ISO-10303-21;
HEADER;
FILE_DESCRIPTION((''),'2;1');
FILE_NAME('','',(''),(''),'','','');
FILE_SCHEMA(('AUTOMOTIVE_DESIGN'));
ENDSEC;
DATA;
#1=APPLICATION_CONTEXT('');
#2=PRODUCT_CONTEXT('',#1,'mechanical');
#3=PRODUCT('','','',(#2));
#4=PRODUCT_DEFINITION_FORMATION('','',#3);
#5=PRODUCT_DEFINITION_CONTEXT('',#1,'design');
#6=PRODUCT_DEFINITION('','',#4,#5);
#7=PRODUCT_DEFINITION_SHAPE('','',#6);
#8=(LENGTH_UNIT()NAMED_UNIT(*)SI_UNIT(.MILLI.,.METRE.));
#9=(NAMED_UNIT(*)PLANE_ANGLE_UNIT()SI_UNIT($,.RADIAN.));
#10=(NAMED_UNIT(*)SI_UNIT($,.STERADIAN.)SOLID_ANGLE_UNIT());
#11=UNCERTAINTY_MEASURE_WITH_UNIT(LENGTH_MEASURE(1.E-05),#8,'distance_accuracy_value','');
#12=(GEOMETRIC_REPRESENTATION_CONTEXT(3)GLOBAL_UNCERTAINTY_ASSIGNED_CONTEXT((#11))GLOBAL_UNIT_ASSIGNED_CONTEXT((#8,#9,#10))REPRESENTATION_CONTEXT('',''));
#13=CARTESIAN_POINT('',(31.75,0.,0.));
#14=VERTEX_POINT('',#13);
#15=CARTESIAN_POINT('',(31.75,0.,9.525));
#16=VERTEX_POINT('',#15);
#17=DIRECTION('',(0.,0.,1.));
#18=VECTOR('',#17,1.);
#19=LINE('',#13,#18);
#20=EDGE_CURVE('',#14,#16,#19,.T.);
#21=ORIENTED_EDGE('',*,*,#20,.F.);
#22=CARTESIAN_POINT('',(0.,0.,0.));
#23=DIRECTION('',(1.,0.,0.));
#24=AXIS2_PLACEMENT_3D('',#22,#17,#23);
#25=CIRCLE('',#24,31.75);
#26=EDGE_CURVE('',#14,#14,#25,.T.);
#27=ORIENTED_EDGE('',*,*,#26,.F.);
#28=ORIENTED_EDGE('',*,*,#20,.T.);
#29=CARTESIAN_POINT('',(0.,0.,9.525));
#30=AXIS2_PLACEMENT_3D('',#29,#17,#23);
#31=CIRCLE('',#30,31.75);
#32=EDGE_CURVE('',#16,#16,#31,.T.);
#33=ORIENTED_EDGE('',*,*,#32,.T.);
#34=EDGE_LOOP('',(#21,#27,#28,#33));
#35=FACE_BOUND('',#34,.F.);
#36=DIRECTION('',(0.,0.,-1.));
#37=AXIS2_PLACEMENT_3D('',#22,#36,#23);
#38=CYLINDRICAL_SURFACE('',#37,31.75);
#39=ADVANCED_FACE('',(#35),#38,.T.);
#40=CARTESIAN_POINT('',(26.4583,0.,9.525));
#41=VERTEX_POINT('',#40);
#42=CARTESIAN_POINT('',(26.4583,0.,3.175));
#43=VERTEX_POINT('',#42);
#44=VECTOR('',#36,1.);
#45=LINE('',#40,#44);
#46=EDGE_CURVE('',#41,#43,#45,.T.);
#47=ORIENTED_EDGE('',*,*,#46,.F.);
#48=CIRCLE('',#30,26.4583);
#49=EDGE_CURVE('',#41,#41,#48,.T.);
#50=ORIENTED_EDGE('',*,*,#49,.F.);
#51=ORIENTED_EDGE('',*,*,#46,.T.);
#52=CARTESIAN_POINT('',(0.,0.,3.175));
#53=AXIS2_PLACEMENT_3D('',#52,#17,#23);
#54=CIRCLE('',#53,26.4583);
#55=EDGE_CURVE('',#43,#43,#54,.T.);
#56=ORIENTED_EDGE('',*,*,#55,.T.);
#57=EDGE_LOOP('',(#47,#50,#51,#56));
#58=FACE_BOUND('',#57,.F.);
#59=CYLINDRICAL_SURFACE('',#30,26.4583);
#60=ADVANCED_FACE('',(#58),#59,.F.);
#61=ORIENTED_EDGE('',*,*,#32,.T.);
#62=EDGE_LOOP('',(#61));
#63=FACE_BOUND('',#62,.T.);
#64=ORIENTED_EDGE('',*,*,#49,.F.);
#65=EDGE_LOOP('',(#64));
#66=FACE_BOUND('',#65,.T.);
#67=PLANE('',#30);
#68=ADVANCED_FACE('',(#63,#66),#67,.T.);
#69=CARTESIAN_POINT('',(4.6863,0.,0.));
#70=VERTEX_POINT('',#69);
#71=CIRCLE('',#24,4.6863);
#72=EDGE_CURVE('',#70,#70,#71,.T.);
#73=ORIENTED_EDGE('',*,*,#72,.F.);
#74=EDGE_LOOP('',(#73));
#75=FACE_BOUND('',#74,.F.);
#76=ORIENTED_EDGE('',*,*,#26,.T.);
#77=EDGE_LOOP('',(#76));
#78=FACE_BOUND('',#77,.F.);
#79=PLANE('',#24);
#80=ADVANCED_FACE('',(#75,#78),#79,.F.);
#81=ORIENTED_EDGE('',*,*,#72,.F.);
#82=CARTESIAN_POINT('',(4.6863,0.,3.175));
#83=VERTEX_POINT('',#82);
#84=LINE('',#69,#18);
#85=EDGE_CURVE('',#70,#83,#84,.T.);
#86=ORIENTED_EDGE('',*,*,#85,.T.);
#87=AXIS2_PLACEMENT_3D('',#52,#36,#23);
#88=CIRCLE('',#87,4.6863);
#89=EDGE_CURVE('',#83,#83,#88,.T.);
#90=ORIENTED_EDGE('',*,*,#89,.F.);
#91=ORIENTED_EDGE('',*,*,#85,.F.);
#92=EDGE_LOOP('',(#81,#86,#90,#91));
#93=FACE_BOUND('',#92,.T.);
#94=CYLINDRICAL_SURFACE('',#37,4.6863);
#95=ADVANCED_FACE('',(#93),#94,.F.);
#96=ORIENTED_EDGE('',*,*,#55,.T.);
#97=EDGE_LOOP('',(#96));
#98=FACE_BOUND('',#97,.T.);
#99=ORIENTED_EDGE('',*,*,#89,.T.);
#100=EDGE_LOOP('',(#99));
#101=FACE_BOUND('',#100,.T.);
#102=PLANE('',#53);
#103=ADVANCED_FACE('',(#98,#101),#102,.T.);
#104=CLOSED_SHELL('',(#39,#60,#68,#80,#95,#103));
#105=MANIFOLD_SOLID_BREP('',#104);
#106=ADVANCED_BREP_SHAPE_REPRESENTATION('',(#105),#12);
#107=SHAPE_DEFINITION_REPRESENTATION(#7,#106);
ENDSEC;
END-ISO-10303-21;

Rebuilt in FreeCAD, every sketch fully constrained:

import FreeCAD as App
import Part
import Sketcher

V = App.Vector
Q = App.Units.Quantity

doc = App.newDocument("Part")
params = doc.addObject("Spreadsheet::Sheet", "Params")
for row, (alias, value) in enumerate([
    ("sketch1_diameter", "0.369 in"),
    ("sketch1_diameter2", "2.5 in"),
    ("pad1_length", "0.375 in"),
    ("pocket1_length", "0.25 in"),
], start=1):
    params.set(f"A{row}", alias)
    params.set(f"B{row}", "=" + value)
    params.setAlias(f"B{row}", alias)

body = doc.addObject("PartDesign::Body", "Body")

# Sketch on XY plane
sketch1 = body.newObject("Sketcher::SketchObject", "Sketch")
sketch1.AttachmentSupport = (doc.getObject("XY_Plane"), [""])
sketch1.MapMode = "FlatFace"
sketch1.addGeometry([
    Part.Circle(V(0, 0, 0), V(0, 0, 1), 31.8),
    Part.Circle(V(0, 0, 0), V(0, 0, 1), 4.7),
], False)
sketch1.addConstraint([
    Sketcher.Constraint("Coincident", 0, 3, -1, 1),
    Sketcher.Constraint("Coincident", 1, 3, -1, 1),
    Sketcher.Constraint("Diameter", 1, Q("0.369 in")),
    Sketcher.Constraint("Diameter", 0, Q("2.5 in")),
])
sketch1.setExpression("Constraints[2]", "Params.sketch1_diameter")
sketch1.setExpression("Constraints[3]", "Params.sketch1_diameter2")
pad1 = body.newObject("PartDesign::Pad", "Pad")
pad1.Profile = sketch1
pad1.setExpression("Length", "Params.pad1_length")

# Sketch on XY plane
sketch2 = body.newObject("Sketcher::SketchObject", "Sketch001")
sketch2.AttachmentSupport = (doc.getObject("XY_Plane"), [""])
sketch2.MapMode = "FlatFace"
sketch2.AttachmentOffset = App.Placement(V(0, 0, 0.375 * 25.4), App.Rotation())
sketch2.addGeometry(Part.Circle(V(0, 0, 0), V(0, 0, 1), 26), False)
sketch2.addConstraint([
    Sketcher.Constraint("Coincident", 0, 3, -1, 1),
    Sketcher.Constraint("Diameter", 0, Q("52.9166 mm")),
])
pocket1 = body.newObject("PartDesign::Pocket", "Pocket")
pocket1.Profile = sketch2
pocket1.setExpression("Length", "Params.pocket1_length")

doc.recompute()
